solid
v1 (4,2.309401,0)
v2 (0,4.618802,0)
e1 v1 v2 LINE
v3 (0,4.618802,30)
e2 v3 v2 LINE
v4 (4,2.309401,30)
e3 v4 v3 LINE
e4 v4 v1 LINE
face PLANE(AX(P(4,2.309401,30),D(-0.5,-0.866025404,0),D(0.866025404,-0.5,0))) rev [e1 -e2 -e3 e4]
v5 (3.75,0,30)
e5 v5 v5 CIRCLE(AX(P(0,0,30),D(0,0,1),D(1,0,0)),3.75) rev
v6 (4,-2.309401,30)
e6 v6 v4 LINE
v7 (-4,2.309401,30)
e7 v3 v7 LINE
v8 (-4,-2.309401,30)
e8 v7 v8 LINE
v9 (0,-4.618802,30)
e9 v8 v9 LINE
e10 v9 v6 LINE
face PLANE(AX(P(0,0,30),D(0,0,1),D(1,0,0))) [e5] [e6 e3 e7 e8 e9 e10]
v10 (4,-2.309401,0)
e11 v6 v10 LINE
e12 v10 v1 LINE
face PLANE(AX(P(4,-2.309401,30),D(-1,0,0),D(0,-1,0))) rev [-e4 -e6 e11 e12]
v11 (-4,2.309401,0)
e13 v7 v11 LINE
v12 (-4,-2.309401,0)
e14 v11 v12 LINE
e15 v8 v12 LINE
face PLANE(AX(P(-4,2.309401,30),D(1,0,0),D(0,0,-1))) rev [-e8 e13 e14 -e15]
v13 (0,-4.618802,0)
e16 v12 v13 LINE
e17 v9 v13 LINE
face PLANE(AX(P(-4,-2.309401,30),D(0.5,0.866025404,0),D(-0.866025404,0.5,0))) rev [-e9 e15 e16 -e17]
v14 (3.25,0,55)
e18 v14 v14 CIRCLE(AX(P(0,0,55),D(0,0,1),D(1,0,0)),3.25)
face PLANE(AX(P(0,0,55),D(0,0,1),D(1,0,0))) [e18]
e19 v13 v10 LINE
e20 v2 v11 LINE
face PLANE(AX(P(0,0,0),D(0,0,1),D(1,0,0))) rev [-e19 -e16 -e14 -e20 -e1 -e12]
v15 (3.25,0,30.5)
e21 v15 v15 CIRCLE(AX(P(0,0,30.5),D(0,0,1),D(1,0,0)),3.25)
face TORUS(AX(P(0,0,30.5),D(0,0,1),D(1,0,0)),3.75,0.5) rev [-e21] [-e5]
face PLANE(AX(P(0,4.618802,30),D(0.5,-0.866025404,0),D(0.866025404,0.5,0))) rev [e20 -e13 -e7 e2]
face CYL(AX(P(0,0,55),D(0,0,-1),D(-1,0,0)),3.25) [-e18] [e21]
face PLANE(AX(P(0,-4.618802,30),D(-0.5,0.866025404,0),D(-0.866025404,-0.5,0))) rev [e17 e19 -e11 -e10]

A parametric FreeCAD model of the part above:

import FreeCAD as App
import Part
import Sketcher
from FreeCAD import Vector
Q = App.Units.Quantity


def edges_at(feature, points):
    """Names of the edges that pass closest to the given points."""
    edges = feature.Shape.Edges
    near = lambda p: min(range(len(edges)), key=lambda i: edges[i].distToShape(Part.Vertex(*p))[0])
    return sorted({f"Edge{near(p) + 1}" for p in points})

doc = App.newDocument("Part")
params = doc.addObject("Spreadsheet::Sheet", "Params")
for row, (alias, value) in enumerate([
    ("pad1_length", "30 mm"),
    ("sketch2_diameter", "6.5 mm"),
    ("pad2_length", "25 mm"),
    ("fillet_radius", "0.5 mm"),
], start=1):
    params.set(f"A{row}", alias)
    params.set(f"B{row}", "=" + value)
    params.setAlias(f"B{row}", alias)

body = doc.addObject("PartDesign::Body", "Body")

sketch1 = doc.addObject("Sketcher::SketchObject", "Sketch")
body.addObject(sketch1)
sketch1.AttachmentSupport = (doc.XY_Plane, [""])
sketch1.MapMode = "FlatFace"
sketch1.addGeometry(Part.LineSegment(Vector(-4, 2.3, 0), Vector(-4, -2.3, 0)), False)
sketch1.addGeometry(Part.LineSegment(Vector(-4, -2.3, 0), Vector(0, -4.6, 0)), False)
sketch1.addGeometry(Part.LineSegment(Vector(0, -4.6, 0), Vector(4, -2.3, 0)), False)
sketch1.addGeometry(Part.LineSegment(Vector(4, -2.3, 0), Vector(4, 2.3, 0)), False)
sketch1.addGeometry(Part.LineSegment(Vector(4, 2.3, 0), Vector(0, 4.6, 0)), False)
sketch1.addGeometry(Part.LineSegment(Vector(0, 4.6, 0), Vector(-4, 2.3, 0)), False)
sketch1.addConstraint(Sketcher.Constraint("Coincident", 0, 2, 1, 1))
sketch1.addConstraint(Sketcher.Constraint("Coincident", 1, 2, 2, 1))
sketch1.addConstraint(Sketcher.Constraint("Coincident", 2, 2, 3, 1))
sketch1.addConstraint(Sketcher.Constraint("Coincident", 3, 2, 4, 1))
sketch1.addConstraint(Sketcher.Constraint("Coincident", 4, 2, 5, 1))
sketch1.addConstraint(Sketcher.Constraint("Coincident", 5, 2, 0, 1))
sketch1.addConstraint(Sketcher.Constraint("Vertical", 0))
sketch1.addConstraint(Sketcher.Constraint("Vertical", 3))
sketch1.addConstraint(Sketcher.Constraint("Symmetric", 0, 2, 3, 2, -1, 1))
sketch1.addConstraint(Sketcher.Constraint("Symmetric", 1, 2, 4, 2, -1, 1))
sketch1.addConstraint(Sketcher.Constraint("PointOnObject", 1, 2, -2))
sketch1.addConstraint(Sketcher.Constraint("Parallel", 2, 5))
sketch1.addConstraint(Sketcher.Constraint("Horizontal", 0, 2, 2, 2))
sketch1.addConstraint(Sketcher.Constraint("Angle", 1, Q("-30 deg")))
sketch1.addConstraint(Sketcher.Constraint("DistanceX", 0, 2, -1, 1, Q("4 mm")))
sketch1.addConstraint(Sketcher.Constraint("DistanceY", 0, 2, -1, 1, Q("2.309401 mm")))
pad1 = doc.addObject("PartDesign::Pad", "Pad")
body.addObject(pad1)
pad1.Profile = sketch1
pad1.setExpression("Length", "Params.pad1_length")

sketch2 = doc.addObject("Sketcher::SketchObject", "Sketch001")
body.addObject(sketch2)
sketch2.AttachmentSupport = (doc.XY_Plane, [""])
sketch2.MapMode = "FlatFace"
sketch2.AttachmentOffset = App.Placement(Vector(0, 0, 30), App.Rotation())
sketch2.addGeometry(Part.Circle(Vector(0, 0, 0), Vector(0, 0, 1), 3.2), False)
sketch2.addConstraint(Sketcher.Constraint("Coincident", 0, 3, -1, 1))
sketch2.addConstraint(Sketcher.Constraint("Diameter", 0, Q("6.5 mm")))
sketch2.setExpression("Constraints[1]", "Params.sketch2_diameter")
pad2 = doc.addObject("PartDesign::Pad", "Pad001")
body.addObject(pad2)
pad2.Profile = sketch2
pad2.setExpression("Length", "Params.pad2_length")
doc.recompute()

fillet = doc.addObject("PartDesign::Fillet", "Fillet")
body.addObject(fillet)
fillet.Base = (pad2, edges_at(pad2, [(-3.25, 0, 30)]))
fillet.setExpression("Radius", "Params.fillet_radius")

doc.recompute()
